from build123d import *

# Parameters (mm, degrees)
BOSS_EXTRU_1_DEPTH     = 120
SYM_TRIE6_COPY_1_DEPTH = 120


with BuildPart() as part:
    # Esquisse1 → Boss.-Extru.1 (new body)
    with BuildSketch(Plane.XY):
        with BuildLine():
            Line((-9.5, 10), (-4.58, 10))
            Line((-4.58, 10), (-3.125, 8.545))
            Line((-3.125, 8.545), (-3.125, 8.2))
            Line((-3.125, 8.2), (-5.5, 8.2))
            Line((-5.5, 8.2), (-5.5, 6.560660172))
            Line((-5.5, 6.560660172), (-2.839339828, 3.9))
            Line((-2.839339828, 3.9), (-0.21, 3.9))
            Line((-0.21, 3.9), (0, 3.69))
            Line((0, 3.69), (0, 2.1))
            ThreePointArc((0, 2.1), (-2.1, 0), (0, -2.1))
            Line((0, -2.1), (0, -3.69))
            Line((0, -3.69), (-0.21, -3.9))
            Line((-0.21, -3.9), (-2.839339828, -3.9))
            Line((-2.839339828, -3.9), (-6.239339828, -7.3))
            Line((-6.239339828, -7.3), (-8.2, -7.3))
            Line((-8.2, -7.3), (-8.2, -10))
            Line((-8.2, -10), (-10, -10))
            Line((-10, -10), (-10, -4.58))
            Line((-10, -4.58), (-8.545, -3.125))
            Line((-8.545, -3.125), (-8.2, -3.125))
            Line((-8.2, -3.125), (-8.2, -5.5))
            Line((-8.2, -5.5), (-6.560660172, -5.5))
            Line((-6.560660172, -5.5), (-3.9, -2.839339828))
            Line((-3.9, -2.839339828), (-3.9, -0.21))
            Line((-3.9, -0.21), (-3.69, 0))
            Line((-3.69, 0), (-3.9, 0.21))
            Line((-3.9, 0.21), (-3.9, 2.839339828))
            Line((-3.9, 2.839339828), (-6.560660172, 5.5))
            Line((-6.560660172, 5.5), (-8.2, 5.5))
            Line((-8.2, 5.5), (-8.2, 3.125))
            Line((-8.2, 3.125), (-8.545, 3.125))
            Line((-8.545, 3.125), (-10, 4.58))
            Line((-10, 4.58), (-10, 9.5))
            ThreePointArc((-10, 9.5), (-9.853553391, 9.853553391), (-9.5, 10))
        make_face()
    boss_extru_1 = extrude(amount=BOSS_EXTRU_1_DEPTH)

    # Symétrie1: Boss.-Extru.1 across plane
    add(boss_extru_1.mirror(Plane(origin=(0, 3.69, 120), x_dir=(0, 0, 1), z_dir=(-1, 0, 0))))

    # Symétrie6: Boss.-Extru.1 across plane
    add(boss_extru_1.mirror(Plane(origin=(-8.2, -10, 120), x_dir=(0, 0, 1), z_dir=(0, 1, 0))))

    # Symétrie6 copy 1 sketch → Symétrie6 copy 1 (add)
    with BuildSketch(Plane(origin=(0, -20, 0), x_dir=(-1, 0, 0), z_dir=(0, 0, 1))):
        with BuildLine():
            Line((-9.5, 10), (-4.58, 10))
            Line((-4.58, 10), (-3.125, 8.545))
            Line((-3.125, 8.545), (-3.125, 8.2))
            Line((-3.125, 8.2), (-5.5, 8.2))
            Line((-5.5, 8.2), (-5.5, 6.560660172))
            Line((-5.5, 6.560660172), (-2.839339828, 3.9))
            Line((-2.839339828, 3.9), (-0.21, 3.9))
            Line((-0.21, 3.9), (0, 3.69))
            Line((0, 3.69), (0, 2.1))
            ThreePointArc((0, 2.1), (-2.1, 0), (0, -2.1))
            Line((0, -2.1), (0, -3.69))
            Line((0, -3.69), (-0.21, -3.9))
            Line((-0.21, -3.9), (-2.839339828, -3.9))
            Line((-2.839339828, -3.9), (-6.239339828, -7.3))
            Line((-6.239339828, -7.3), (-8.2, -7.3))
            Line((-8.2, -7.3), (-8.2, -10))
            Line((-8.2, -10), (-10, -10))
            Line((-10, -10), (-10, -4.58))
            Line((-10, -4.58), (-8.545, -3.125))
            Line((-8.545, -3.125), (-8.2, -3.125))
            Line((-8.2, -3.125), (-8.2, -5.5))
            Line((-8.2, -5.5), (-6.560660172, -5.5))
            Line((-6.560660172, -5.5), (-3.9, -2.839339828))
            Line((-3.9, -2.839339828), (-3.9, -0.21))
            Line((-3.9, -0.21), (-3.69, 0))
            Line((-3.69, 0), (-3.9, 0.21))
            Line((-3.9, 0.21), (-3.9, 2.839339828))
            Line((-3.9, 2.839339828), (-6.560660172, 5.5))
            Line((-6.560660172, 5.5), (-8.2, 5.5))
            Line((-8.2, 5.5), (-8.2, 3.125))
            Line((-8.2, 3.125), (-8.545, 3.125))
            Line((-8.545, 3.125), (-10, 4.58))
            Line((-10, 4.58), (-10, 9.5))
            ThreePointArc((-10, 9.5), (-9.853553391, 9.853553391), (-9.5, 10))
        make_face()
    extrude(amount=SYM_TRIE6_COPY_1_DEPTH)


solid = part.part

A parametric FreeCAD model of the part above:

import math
import FreeCAD as App
import Part
import Sketcher

V = App.Vector
Q = App.Units.Quantity

doc = App.newDocument("Part")
body = doc.addObject("PartDesign::Body", "Body")

# Sketch on XY plane
sketch1 = body.newObject("Sketcher::SketchObject", "Sketch")
sketch1.AttachmentSupport = (doc.getObject("XY_Plane"), [""])
sketch1.MapMode = "FlatFace"
sketch1.addGeometry([
    Part.LineSegment(V(-4.58, 10, 0), V(-9.5, 10, 0)),  # 0
    Part.ArcOfCircle(Part.Circle(V(-9.5, 9.5, 0), V(0, 0, 1), 0.5), math.radians(90), math.radians(180)),  # 1
    Part.LineSegment(V(-10, 9.5, 0), V(-10, 4.58, 0)),  # 2
    Part.LineSegment(V(-10, 4.58, 0), V(-8.54, 3.12, 0)),  # 3
    Part.LineSegment(V(-8.54, 3.12, 0), V(-8.2, 3.12, 0)),  # 4
    Part.LineSegment(V(-8.2, 3.12, 0), V(-8.2, 5.5, 0)),  # 5
    Part.LineSegment(V(-8.2, 5.5, 0), V(-6.56, 5.5, 0)),  # 6
    Part.LineSegment(V(-6.56, 5.5, 0), V(-3.9, 2.84, 0)),  # 7
    Part.LineSegment(V(-3.9, 2.84, 0), V(-3.9, 0.21, 0)),  # 8
    Part.LineSegment(V(-3.9, 0.21, 0), V(-3.69, 0, 0)),  # 9
    Part.LineSegment(V(-3.69, 0, 0), V(-3.9, -0.21, 0)),  # 10
    Part.LineSegment(V(-3.9, -0.21, 0), V(-3.9, -2.84, 0)),  # 11
    Part.LineSegment(V(-3.9, -2.84, 0), V(-6.56, -5.5, 0)),  # 12
    Part.LineSegment(V(-6.56, -5.5, 0), V(-8.2, -5.5, 0)),  # 13
    Part.LineSegment(V(-8.2, -5.5, 0), V(-8.2, -3.12, 0)),  # 14
    Part.LineSegment(V(-8.2, -3.12, 0), V(-8.54, -3.12, 0)),  # 15
    Part.LineSegment(V(-8.54, -3.12, 0), V(-10, -4.58, 0)),  # 16
    Part.LineSegment(V(-10, -4.58, 0), V(-10, -10, 0)),  # 17
    Part.LineSegment(V(-10, -10, 0), V(-8.2, -10, 0)),  # 18
    Part.LineSegment(V(-8.2, -10, 0), V(-8.2, -7.3, 0)),  # 19
    Part.LineSegment(V(-8.2, -7.3, 0), V(-6.24, -7.3, 0)),  # 20
    Part.LineSegment(V(-6.24, -7.3, 0), V(-2.84, -3.9, 0)),  # 21
    Part.LineSegment(V(-2.84, -3.9, 0), V(-0.21, -3.9, 0)),  # 22
    Part.LineSegment(V(-0.21, -3.9, 0), V(0, -3.69, 0)),  # 23
    Part.LineSegment(V(0, -3.69, 0), V(0, -2.1, 0)),  # 24
    Part.ArcOfCircle(Part.Circle(V(0, 0, 0), V(0, 0, 1), 2.1), math.radians(90), math.radians(270)),  # 25
    Part.LineSegment(V(0, 2.1, 0), V(0, 3.69, 0)),  # 26
    Part.LineSegment(V(0, 3.69, 0), V(-0.21, 3.9, 0)),  # 27
    Part.LineSegment(V(-0.21, 3.9, 0), V(-2.84, 3.9, 0)),  # 28
    Part.LineSegment(V(-2.84, 3.9, 0), V(-5.5, 6.56, 0)),  # 29
    Part.LineSegment(V(-5.5, 6.56, 0), V(-5.5, 8.2, 0)),  # 30
    Part.LineSegment(V(-5.5, 8.2, 0), V(-3.12, 8.2, 0)),  # 31
    Part.LineSegment(V(-3.12, 8.2, 0), V(-3.12, 8.54, 0)),  # 32
    Part.LineSegment(V(-3.12, 8.54, 0), V(-4.58, 10, 0)),  # 33
], False)
sketch1.addConstraint([
    Sketcher.Constraint("Tangent", 0, 2, 1, 1),
    Sketcher.Constraint("Tangent", 1, 2, 2, 1),
    Sketcher.Constraint("Coincident", 2, 2, 3, 1),
    Sketcher.Constraint("Coincident", 3, 2, 4, 1),
    Sketcher.Constraint("Coincident", 4, 2, 5, 1),
    Sketcher.Constraint("Coincident", 5, 2, 6, 1),
    Sketcher.Constraint("Coincident", 6, 2, 7, 1),
    Sketcher.Constraint("Coincident", 7, 2, 8, 1),
    Sketcher.Constraint("Coincident", 8, 2, 9, 1),
    Sketcher.Constraint("Coincident", 9, 2, 10, 1),
    Sketcher.Constraint("Coincident", 10, 2, 11, 1),
    Sketcher.Constraint("Coincident", 11, 2, 12, 1),
    Sketcher.Constraint("Coincident", 12, 2, 13, 1),
    Sketcher.Constraint("Coincident", 13, 2, 14, 1),
    Sketcher.Constraint("Coincident", 14, 2, 15, 1),
    Sketcher.Constraint("Coincident", 15, 2, 16, 1),
    Sketcher.Constraint("Coincident", 16, 2, 17, 1),
    Sketcher.Constraint("Coincident", 17, 2, 18, 1),
    Sketcher.Constraint("Coincident", 18, 2, 19, 1),
    Sketcher.Constraint("Coincident", 19, 2, 20, 1),
    Sketcher.Constraint("Coincident", 20, 2, 21, 1),
    Sketcher.Constraint("Coincident", 21, 2, 22, 1),
    Sketcher.Constraint("Coincident", 22, 2, 23, 1),
    Sketcher.Constraint("Coincident", 23, 2, 24, 1),
    Sketcher.Constraint("Coincident", 24, 2, 25, 2),
    Sketcher.Constraint("Coincident", 25, 1, 26, 1),
    Sketcher.Constraint("Coincident", 26, 2, 27, 1),
    Sketcher.Constraint("Coincident", 27, 2, 28, 1),
    Sketcher.Constraint("Coincident", 28, 2, 29, 1),
    Sketcher.Constraint("Coincident", 29, 2, 30, 1),
    Sketcher.Constraint("Coincident", 30, 2, 31, 1),
    Sketcher.Constraint("Coincident", 31, 2, 32, 1),
    Sketcher.Constraint("Coincident", 32, 2, 33, 1),
    Sketcher.Constraint("Coincident", 33, 2, 0, 1),
    Sketcher.Constraint("Horizontal", 0),
    Sketcher.Constraint("Vertical", 2),
    Sketcher.Constraint("Horizontal", 4),
    Sketcher.Constraint("Vertical", 5),
    Sketcher.Constraint("Horizontal", 6),
    Sketcher.Constraint("Vertical", 8),
    Sketcher.Constraint("Vertical", 11),
    Sketcher.Constraint("Horizontal", 13),
    Sketcher.Constraint("Vertical", 14),
    Sketcher.Constraint("Horizontal", 15),
    Sketcher.Constraint("Vertical", 17),
    Sketcher.Constraint("Horizontal", 18),
    Sketcher.Constraint("Vertical", 19),
    Sketcher.Constraint("Horizontal", 20),
    Sketcher.Constraint("Horizontal", 22),
    Sketcher.Constraint("Vertical", 24),
    Sketcher.Constraint("Vertical", 26),
    Sketcher.Constraint("Horizontal", 28),
    Sketcher.Constraint("Vertical", 30),
    Sketcher.Constraint("Horizontal", 31),
    Sketcher.Constraint("Vertical", 32),
    Sketcher.Constraint("Coincident", 25, 3, -1, 1),
    Sketcher.Constraint("Symmetric", 23, 2, 26, 2, -1, 1),
    Sketcher.Constraint("Symmetric", 8, 2, 10, 2, -1),
    Sketcher.Constraint("Symmetric", 6, 2, 12, 2, -1),
    Sketcher.Constraint("Symmetric", 4, 2, 14, 2, -1),
    Sketcher.Constraint("Symmetric", 2, 2, 16, 2, -1),
    Sketcher.Constraint("Symmetric", 22, 2, 27, 2, -1),
    Sketcher.Constraint("PointOnObject", 9, 2, -1),
    Sketcher.Constraint("PointOnObject", 23, 2, -2),
    Sketcher.Constraint("Parallel", 3, 7),
    Sketcher.Constraint("Parallel", 7, 9),
    Sketcher.Constraint("Perpendicular", 9, 10),
    Sketcher.Constraint("Parallel", 10, 12),
    Sketcher.Constraint("Parallel", 12, 16),
    Sketcher.Constraint("Parallel", 16, 21),
    Sketcher.Constraint("Parallel", 21, 23),
    Sketcher.Constraint("Parallel", 27, 29),
    Sketcher.Constraint("Parallel", 29, 33),
    Sketcher.Constraint("Vertical", 14, 2, 18, 2),
    Sketcher.Constraint("Vertical", 21, 2, 28, 2),
    Sketcher.Constraint("Equal", 0, 2),
    Sketcher.Constraint("Equal", 31, 5),
    Sketcher.Constraint("Equal", 28, 8),
    Sketcher.Constraint("Equal", 13, 30),
    Sketcher.Constraint("Equal", 15, 32),
    Sketcher.Constraint("Equal", 10, 23),
    Sketcher.Constraint("Equal", 12, 29),
    Sketcher.Constraint("Equal", 16, 33),
    Sketcher.Constraint("Radius", 1, Q("0.5 mm")),
    Sketcher.Constraint("Radius", 25, Q("2.1 mm")),
    Sketcher.Constraint("DistanceX", 18, 1, 18, 2, Q("1.8 mm")),
    Sketcher.Constraint("DistanceY", 19, 1, 19, 2, Q("2.7 mm")),
    Sketcher.Constraint("DistanceY", -1, 1, 0, 2, Q("10 mm")),
    Sketcher.Constraint("DistanceY", 17, 2, -1, 1, Q("10 mm")),
    Sketcher.Constraint("DistanceY", 5, 2, 1, 3, Q("4 mm")),
    Sketcher.Constraint("DistanceX", 0, 2, 0, 1, Q("4.92 mm")),
    Sketcher.Constraint("DistanceY", 24, 1, 24, 2, Q("1.59 mm")),
    Sketcher.Constraint("DistanceX", 7, 2, -1, 1, Q("3.9 mm")),
    Sketcher.Constraint("DistanceX", 4, 1, 4, 2, Q("0.345 mm")),
    Sketcher.Constraint("DistanceX", 6, 1, 6, 2, Q("1.63934 mm")),
])
pad1 = body.newObject("PartDesign::Pad", "Pad")
pad1.Profile = sketch1
pad1.Length = 120
doc.recompute()

mirrored = body.newObject("PartDesign::Mirrored", "Mirrored")
mirrored.Originals = [pad1]
mirrored.MirrorPlane = (doc.getObject("YZ_Plane"), [""])
body.Tip = mirrored
doc.recompute()

datumplane = body.newObject("PartDesign::Plane", "DatumPlane")
datumplane.AttachmentSupport = (doc.getObject("XZ_Plane"), [""])
datumplane.MapMode = "FlatFace"
datumplane.AttachmentOffset = App.Placement(V(0, 0, 10), App.Rotation())
mirrored2 = body.newObject("PartDesign::Mirrored", "Mirrored001")
mirrored2.Originals = [pad1]
mirrored2.MirrorPlane = (datumplane, [""])
body.Tip = mirrored2

# Sketch on XY plane
sketch2 = body.newObject("Sketcher::SketchObject", "Sketch001")
sketch2.AttachmentSupport = (doc.getObject("XY_Plane"), [""])
sketch2.MapMode = "FlatFace"
sketch2.addGeometry([
    Part.LineSegment(V(4.58, -30, 0), V(9.5, -30, 0)),  # 0
    Part.ArcOfCircle(Part.Circle(V(9.5, -29.5, 0), V(0, 0, 1), 0.5), math.radians(-90), math.radians(0)),  # 1
    Part.LineSegment(V(10, -29.5, 0), V(10, -24.58, 0)),  # 2
    Part.LineSegment(V(10, -24.58, 0), V(8.54, -23.12, 0)),  # 3
    Part.LineSegment(V(8.54, -23.12, 0), V(8.2, -23.12, 0)),  # 4
    Part.LineSegment(V(8.2, -23.12, 0), V(8.2, -25.5, 0)),  # 5
    Part.LineSegment(V(8.2, -25.5, 0), V(6.56, -25.5, 0)),  # 6
    Part.LineSegment(V(6.56, -25.5, 0), V(3.9, -22.84, 0)),  # 7
    Part.LineSegment(V(3.9, -22.84, 0), V(3.9, -20.21, 0)),  # 8
    Part.LineSegment(V(3.9, -20.21, 0), V(3.69, -20, 0)),  # 9
    Part.LineSegment(V(3.69, -20, 0), V(3.9, -19.79, 0)),  # 10
    Part.LineSegment(V(3.9, -19.79, 0), V(3.9, -17.16, 0)),  # 11
    Part.LineSegment(V(3.9, -17.16, 0), V(6.56, -14.5, 0)),  # 12
    Part.LineSegment(V(6.56, -14.5, 0), V(8.2, -14.5, 0)),  # 13
    Part.LineSegment(V(8.2, -14.5, 0), V(8.2, -16.88, 0)),  # 14
    Part.LineSegment(V(8.2, -16.88, 0), V(8.54, -16.88, 0)),  # 15
    Part.LineSegment(V(8.54, -16.88, 0), V(10, -15.42, 0)),  # 16
    Part.LineSegment(V(10, -15.42, 0), V(10, -10, 0)),  # 17
    Part.LineSegment(V(10, -10, 0), V(8.2, -10, 0)),  # 18
    Part.LineSegment(V(8.2, -10, 0), V(8.2, -12.7, 0)),  # 19
    Part.LineSegment(V(8.2, -12.7, 0), V(6.24, -12.7, 0)),  # 20
    Part.LineSegment(V(6.24, -12.7, 0), V(2.84, -16.1, 0)),  # 21
    Part.LineSegment(V(2.84, -16.1, 0), V(0.21, -16.1, 0)),  # 22
    Part.LineSegment(V(0.21, -16.1, 0), V(0, -16.31, 0)),  # 23
    Part.LineSegment(V(0, -16.31, 0), V(0, -17.9, 0)),  # 24
    Part.ArcOfCircle(Part.Circle(V(0, -20, 0), V(0, 0, 1), 2.1), math.radians(-90), math.radians(90)),  # 25
    Part.LineSegment(V(0, -22.1, 0), V(0, -23.69, 0)),  # 26
    Part.LineSegment(V(0, -23.69, 0), V(0.21, -23.9, 0)),  # 27
    Part.LineSegment(V(0.21, -23.9, 0), V(2.84, -23.9, 0)),  # 28
    Part.LineSegment(V(2.84, -23.9, 0), V(5.5, -26.56, 0)),  # 29
    Part.LineSegment(V(5.5, -26.56, 0), V(5.5, -28.2, 0)),  # 30
    Part.LineSegment(V(5.5, -28.2, 0), V(3.12, -28.2, 0)),  # 31
    Part.LineSegment(V(3.12, -28.2, 0), V(3.12, -28.55, 0)),  # 32
    Part.LineSegment(V(3.12, -28.55, 0), V(4.58, -30, 0)),  # 33
], False)
sketch2.addConstraint([
    Sketcher.Constraint("Tangent", 0, 2, 1, 1),
    Sketcher.Constraint("Tangent", 1, 2, 2, 1),
    Sketcher.Constraint("Coincident", 2, 2, 3, 1),
    Sketcher.Constraint("Coincident", 3, 2, 4, 1),
    Sketcher.Constraint("Coincident", 4, 2, 5, 1),
    Sketcher.Constraint("Coincident", 5, 2, 6, 1),
    Sketcher.Constraint("Coincident", 6, 2, 7, 1),
    Sketcher.Constraint("Coincident", 7, 2, 8, 1),
    Sketcher.Constraint("Coincident", 8, 2, 9, 1),
    Sketcher.Constraint("Coincident", 9, 2, 10, 1),
    Sketcher.Constraint("Coincident", 10, 2, 11, 1),
    Sketcher.Constraint("Coincident", 11, 2, 12, 1),
    Sketcher.Constraint("Coincident", 12, 2, 13, 1),
    Sketcher.Constraint("Coincident", 13, 2, 14, 1),
    Sketcher.Constraint("Coincident", 14, 2, 15, 1),
    Sketcher.Constraint("Coincident", 15, 2, 16, 1),
    Sketcher.Constraint("Coincident", 16, 2, 17, 1),
    Sketcher.Constraint("Coincident", 17, 2, 18, 1),
    Sketcher.Constraint("Coincident", 18, 2, 19, 1),
    Sketcher.Constraint("Coincident", 19, 2, 20, 1),
    Sketcher.Constraint("Coincident", 20, 2, 21, 1),
    Sketcher.Constraint("Coincident", 21, 2, 22, 1),
    Sketcher.Constraint("Coincident", 22, 2, 23, 1),
    Sketcher.Constraint("Coincident", 23, 2, 24, 1),
    Sketcher.Constraint("Coincident", 24, 2, 25, 2),
    Sketcher.Constraint("Coincident", 25, 1, 26, 1),
    Sketcher.Constraint("Coincident", 26, 2, 27, 1),
    Sketcher.Constraint("Coincident", 27, 2, 28, 1),
    Sketcher.Constraint("Coincident", 28, 2, 29, 1),
    Sketcher.Constraint("Coincident", 29, 2, 30, 1),
    Sketcher.Constraint("Coincident", 30, 2, 31, 1),
    Sketcher.Constraint("Coincident", 31, 2, 32, 1),
    Sketcher.Constraint("Coincident", 32, 2, 33, 1),
    Sketcher.Constraint("Coincident", 33, 2, 0, 1),
    Sketcher.Constraint("Horizontal", 0),
    Sketcher.Constraint("Vertical", 2),
    Sketcher.Constraint("Horizontal", 4),
    Sketcher.Constraint("Vertical", 5),
    Sketcher.Constraint("Horizontal", 6),
    Sketcher.Constraint("Vertical", 8),
    Sketcher.Constraint("Vertical", 11),
    Sketcher.Constraint("Horizontal", 13),
    Sketcher.Constraint("Vertical", 14),
    Sketcher.Constraint("Horizontal", 15),
    Sketcher.Constraint("Vertical", 17),
    Sketcher.Constraint("Horizontal", 18),
    Sketcher.Constraint("Vertical", 19),
    Sketcher.Constraint("Horizontal", 20),
    Sketcher.Constraint("Horizontal", 22),
    Sketcher.Constraint("Vertical", 24),
    Sketcher.Constraint("Vertical", 26),
    Sketcher.Constraint("Horizontal", 28),
    Sketcher.Constraint("Vertical", 30),
    Sketcher.Constraint("Horizontal", 31),
    Sketcher.Constraint("Vertical", 32),
    Sketcher.Constraint("PointOnObject", 25, 3, -2),
    Sketcher.Constraint("PointOnObject", 23, 2, -2),
    Sketcher.Constraint("PointOnObject", 25, 1, -2),
    Sketcher.Constraint("Parallel", 3, 7),
    Sketcher.Constraint("Parallel", 7, 9),
    Sketcher.Constraint("Perpendicular", 9, 10),
    Sketcher.Constraint("Parallel", 10, 12),
    Sketcher.Constraint("Parallel", 12, 16),
    Sketcher.Constraint("Parallel", 16, 21),
    Sketcher.Constraint("Parallel", 21, 23),
    Sketcher.Constraint("Perpendicular", 23, 27),
    Sketcher.Constraint("Parallel", 27, 29),
    Sketcher.Constraint("Parallel", 29, 33),
    Sketcher.Constraint("Horizontal", 25, 3, 9, 2),
    Sketcher.Constraint("Vertical", 8, 2, 10, 2),
    Sketcher.Constraint("Vertical", 6, 2, 12, 2),
    Sketcher.Constraint("Vertical", 5, 2, 13, 2),
    Sketcher.Constraint("Vertical", 3, 2, 15, 2),
    Sketcher.Constraint("Vertical", 2, 2, 16, 2),
    Sketcher.Constraint("Vertical", 14, 2, 18, 2),
    Sketcher.Constraint("Vertical", 22, 2, 27, 2),
    Sketcher.Constraint("Vertical", 21, 2, 28, 2),
    Sketcher.Constraint("Equal", 0, 2),
    Sketcher.Constraint("Equal", 31, 5),
    Sketcher.Constraint("Equal", 28, 8),
    Sketcher.Constraint("Equal", 8, 11),
    Sketcher.Constraint("Equal", 5, 14),
    Sketcher.Constraint("Equal", 24, 26),
    Sketcher.Constraint("Equal", 13, 30),
    Sketcher.Constraint("Equal", 15, 32),
    Sketcher.Constraint("Equal", 9, 10),
    Sketcher.Constraint("Equal", 10, 23),
    Sketcher.Constraint("Equal", 12, 29),
    Sketcher.Constraint("Equal", 16, 33),
    Sketcher.Constraint("Radius", 1, Q("0.5 mm")),
    Sketcher.Constraint("Radius", 25, Q("2.1 mm")),
    Sketcher.Constraint("DistanceX", 18, 2, 18, 1, Q("1.8 mm")),
    Sketcher.Constraint("DistanceY", 19, 2, 19, 1, Q("2.7 mm")),
    Sketcher.Constraint("DistanceY", 25, 3, -1, 1, Q("20 mm")),
    Sketcher.Constraint("DistanceY", 0, 2, -1, 1, Q("30 mm")),
    Sketcher.Constraint("DistanceY", 17, 2, -1, 1, Q("10 mm")),
    Sketcher.Constraint("DistanceY", 1, 3, 5, 2, Q("4 mm")),
    Sketcher.Constraint("DistanceX", 0, 1, 0, 2, Q("4.92 mm")),
    Sketcher.Constraint("DistanceY", 24, 2, 24, 1, Q("1.59 mm")),
    Sketcher.Constraint("DistanceX", -1, 1, 7, 2, Q("3.9 mm")),
    Sketcher.Constraint("DistanceX", 4, 2, 4, 1, Q("0.345 mm")),
    Sketcher.Constraint("DistanceX", 6, 2, 6, 1, Q("1.63934 mm")),
])
pad2 = body.newObject("PartDesign::Pad", "Pad001")
pad2.Profile = sketch2
pad2.Length = 120

doc.recompute()
